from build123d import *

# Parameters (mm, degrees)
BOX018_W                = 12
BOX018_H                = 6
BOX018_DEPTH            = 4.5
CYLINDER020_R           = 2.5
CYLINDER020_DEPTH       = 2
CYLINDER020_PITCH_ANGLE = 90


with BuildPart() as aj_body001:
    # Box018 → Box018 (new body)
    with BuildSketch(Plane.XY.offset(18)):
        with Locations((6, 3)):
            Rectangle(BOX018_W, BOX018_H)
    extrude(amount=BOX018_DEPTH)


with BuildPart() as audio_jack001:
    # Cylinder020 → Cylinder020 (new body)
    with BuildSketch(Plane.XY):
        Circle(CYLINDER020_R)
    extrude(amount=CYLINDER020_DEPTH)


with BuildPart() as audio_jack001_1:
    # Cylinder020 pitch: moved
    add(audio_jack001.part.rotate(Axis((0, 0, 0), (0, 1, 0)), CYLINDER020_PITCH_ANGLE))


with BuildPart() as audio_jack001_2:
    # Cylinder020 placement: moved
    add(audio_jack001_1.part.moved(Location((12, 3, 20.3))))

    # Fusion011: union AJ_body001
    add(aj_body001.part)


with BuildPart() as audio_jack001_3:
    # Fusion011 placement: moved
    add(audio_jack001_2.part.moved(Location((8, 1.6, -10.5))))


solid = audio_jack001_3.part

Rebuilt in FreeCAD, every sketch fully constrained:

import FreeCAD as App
import Part
import Sketcher

V = App.Vector


def add_polygon(sketch, points):
    """Adds a closed chain of lines whose ends are joined by coincident constraints."""
    first, n = sketch.GeometryCount, len(points)
    for a, b in zip(points, points[1:] + points[:1]):
        sketch.addGeometry(Part.LineSegment(App.Vector(*a, 0), App.Vector(*b, 0)), False)
    for i in range(n):
        sketch.addConstraint(Sketcher.Constraint("Coincident", first + i, 2, first + (i + 1) % n, 1))

doc = App.newDocument("Part")
body = doc.addObject("PartDesign::Body", "Body")

sketch1 = body.newObject("Sketcher::SketchObject", "Sketch")
sketch1.AttachmentSupport = (doc.getObject("XY_Plane"), [""])
sketch1.MapMode = "FlatFace"
sketch1.AttachmentOffset = App.Placement(V(0, 0, 18), App.Rotation())
add_polygon(sketch1, [(0, 6), (0, 0), (12, 0), (12, 6)])
sketch1.addConstraint([
    Sketcher.Constraint("Vertical", 0),
    Sketcher.Constraint("Horizontal", 1),
    Sketcher.Constraint("Vertical", 2),
    Sketcher.Constraint("Horizontal", 3),
    Sketcher.Constraint("Coincident", 0, 2, -1, 1),
    Sketcher.Constraint("DistanceX", 1, 1, 1, 2, 12.0),
    Sketcher.Constraint("DistanceY", 0, 2, 0, 1, 6.0),
])
pad1 = body.newObject("PartDesign::Pad", "Pad")
pad1.Profile = sketch1
pad1.Length = 4.5
body2 = doc.addObject("PartDesign::Body", "Body001")

sketch2 = body2.newObject("Sketcher::SketchObject", "Sketch001")
sketch2.AttachmentSupport = (doc.getObject("XY_Plane001"), [""])
sketch2.MapMode = "FlatFace"
sketch2.addGeometry(Part.Circle(V(0, 0, 0), V(0, 0, 1), 2.5), False)
sketch2.addConstraint([
    Sketcher.Constraint("Coincident", 0, 3, -1, 1),
    Sketcher.Constraint("Diameter", 0, 5.0),
])
pad2 = body2.newObject("PartDesign::Pad", "Pad001")
pad2.Profile = sketch2
pad2.Length = 2
body3 = doc.addObject("PartDesign::Body", "Body002")
doc.recompute()

body2.Placement = App.Placement(V(0, 0, 0), App.Rotation(V(0, 1, 0), 90))
boolean = body3.newObject("PartDesign::Boolean", "Boolean")
boolean.Type = "Fuse"
boolean.addObjects([body2])
body4 = doc.addObject("PartDesign::Body", "Body003")
doc.recompute()

body3.Placement = App.Placement(V(12, 3, 20.3), App.Rotation(V(0, 0, 1), 0))
boolean2 = body4.newObject("PartDesign::Boolean", "Boolean001")
boolean2.Type = "Fuse"
boolean2.addObjects([body3])
doc.recompute()

boolean3 = body4.newObject("PartDesign::Boolean", "Boolean002")
boolean3.Type = "Fuse"
boolean3.addObjects([body])
body5 = doc.addObject("PartDesign::Body", "Body004")
doc.recompute()

body4.Placement = App.Placement(V(8, 1.6, -10.5), App.Rotation(V(0, 0, 1), 0))
boolean4 = body5.newObject("PartDesign::Boolean", "Boolean003")
boolean4.Type = "Fuse"
boolean4.addObjects([body4])

doc.recompute()
